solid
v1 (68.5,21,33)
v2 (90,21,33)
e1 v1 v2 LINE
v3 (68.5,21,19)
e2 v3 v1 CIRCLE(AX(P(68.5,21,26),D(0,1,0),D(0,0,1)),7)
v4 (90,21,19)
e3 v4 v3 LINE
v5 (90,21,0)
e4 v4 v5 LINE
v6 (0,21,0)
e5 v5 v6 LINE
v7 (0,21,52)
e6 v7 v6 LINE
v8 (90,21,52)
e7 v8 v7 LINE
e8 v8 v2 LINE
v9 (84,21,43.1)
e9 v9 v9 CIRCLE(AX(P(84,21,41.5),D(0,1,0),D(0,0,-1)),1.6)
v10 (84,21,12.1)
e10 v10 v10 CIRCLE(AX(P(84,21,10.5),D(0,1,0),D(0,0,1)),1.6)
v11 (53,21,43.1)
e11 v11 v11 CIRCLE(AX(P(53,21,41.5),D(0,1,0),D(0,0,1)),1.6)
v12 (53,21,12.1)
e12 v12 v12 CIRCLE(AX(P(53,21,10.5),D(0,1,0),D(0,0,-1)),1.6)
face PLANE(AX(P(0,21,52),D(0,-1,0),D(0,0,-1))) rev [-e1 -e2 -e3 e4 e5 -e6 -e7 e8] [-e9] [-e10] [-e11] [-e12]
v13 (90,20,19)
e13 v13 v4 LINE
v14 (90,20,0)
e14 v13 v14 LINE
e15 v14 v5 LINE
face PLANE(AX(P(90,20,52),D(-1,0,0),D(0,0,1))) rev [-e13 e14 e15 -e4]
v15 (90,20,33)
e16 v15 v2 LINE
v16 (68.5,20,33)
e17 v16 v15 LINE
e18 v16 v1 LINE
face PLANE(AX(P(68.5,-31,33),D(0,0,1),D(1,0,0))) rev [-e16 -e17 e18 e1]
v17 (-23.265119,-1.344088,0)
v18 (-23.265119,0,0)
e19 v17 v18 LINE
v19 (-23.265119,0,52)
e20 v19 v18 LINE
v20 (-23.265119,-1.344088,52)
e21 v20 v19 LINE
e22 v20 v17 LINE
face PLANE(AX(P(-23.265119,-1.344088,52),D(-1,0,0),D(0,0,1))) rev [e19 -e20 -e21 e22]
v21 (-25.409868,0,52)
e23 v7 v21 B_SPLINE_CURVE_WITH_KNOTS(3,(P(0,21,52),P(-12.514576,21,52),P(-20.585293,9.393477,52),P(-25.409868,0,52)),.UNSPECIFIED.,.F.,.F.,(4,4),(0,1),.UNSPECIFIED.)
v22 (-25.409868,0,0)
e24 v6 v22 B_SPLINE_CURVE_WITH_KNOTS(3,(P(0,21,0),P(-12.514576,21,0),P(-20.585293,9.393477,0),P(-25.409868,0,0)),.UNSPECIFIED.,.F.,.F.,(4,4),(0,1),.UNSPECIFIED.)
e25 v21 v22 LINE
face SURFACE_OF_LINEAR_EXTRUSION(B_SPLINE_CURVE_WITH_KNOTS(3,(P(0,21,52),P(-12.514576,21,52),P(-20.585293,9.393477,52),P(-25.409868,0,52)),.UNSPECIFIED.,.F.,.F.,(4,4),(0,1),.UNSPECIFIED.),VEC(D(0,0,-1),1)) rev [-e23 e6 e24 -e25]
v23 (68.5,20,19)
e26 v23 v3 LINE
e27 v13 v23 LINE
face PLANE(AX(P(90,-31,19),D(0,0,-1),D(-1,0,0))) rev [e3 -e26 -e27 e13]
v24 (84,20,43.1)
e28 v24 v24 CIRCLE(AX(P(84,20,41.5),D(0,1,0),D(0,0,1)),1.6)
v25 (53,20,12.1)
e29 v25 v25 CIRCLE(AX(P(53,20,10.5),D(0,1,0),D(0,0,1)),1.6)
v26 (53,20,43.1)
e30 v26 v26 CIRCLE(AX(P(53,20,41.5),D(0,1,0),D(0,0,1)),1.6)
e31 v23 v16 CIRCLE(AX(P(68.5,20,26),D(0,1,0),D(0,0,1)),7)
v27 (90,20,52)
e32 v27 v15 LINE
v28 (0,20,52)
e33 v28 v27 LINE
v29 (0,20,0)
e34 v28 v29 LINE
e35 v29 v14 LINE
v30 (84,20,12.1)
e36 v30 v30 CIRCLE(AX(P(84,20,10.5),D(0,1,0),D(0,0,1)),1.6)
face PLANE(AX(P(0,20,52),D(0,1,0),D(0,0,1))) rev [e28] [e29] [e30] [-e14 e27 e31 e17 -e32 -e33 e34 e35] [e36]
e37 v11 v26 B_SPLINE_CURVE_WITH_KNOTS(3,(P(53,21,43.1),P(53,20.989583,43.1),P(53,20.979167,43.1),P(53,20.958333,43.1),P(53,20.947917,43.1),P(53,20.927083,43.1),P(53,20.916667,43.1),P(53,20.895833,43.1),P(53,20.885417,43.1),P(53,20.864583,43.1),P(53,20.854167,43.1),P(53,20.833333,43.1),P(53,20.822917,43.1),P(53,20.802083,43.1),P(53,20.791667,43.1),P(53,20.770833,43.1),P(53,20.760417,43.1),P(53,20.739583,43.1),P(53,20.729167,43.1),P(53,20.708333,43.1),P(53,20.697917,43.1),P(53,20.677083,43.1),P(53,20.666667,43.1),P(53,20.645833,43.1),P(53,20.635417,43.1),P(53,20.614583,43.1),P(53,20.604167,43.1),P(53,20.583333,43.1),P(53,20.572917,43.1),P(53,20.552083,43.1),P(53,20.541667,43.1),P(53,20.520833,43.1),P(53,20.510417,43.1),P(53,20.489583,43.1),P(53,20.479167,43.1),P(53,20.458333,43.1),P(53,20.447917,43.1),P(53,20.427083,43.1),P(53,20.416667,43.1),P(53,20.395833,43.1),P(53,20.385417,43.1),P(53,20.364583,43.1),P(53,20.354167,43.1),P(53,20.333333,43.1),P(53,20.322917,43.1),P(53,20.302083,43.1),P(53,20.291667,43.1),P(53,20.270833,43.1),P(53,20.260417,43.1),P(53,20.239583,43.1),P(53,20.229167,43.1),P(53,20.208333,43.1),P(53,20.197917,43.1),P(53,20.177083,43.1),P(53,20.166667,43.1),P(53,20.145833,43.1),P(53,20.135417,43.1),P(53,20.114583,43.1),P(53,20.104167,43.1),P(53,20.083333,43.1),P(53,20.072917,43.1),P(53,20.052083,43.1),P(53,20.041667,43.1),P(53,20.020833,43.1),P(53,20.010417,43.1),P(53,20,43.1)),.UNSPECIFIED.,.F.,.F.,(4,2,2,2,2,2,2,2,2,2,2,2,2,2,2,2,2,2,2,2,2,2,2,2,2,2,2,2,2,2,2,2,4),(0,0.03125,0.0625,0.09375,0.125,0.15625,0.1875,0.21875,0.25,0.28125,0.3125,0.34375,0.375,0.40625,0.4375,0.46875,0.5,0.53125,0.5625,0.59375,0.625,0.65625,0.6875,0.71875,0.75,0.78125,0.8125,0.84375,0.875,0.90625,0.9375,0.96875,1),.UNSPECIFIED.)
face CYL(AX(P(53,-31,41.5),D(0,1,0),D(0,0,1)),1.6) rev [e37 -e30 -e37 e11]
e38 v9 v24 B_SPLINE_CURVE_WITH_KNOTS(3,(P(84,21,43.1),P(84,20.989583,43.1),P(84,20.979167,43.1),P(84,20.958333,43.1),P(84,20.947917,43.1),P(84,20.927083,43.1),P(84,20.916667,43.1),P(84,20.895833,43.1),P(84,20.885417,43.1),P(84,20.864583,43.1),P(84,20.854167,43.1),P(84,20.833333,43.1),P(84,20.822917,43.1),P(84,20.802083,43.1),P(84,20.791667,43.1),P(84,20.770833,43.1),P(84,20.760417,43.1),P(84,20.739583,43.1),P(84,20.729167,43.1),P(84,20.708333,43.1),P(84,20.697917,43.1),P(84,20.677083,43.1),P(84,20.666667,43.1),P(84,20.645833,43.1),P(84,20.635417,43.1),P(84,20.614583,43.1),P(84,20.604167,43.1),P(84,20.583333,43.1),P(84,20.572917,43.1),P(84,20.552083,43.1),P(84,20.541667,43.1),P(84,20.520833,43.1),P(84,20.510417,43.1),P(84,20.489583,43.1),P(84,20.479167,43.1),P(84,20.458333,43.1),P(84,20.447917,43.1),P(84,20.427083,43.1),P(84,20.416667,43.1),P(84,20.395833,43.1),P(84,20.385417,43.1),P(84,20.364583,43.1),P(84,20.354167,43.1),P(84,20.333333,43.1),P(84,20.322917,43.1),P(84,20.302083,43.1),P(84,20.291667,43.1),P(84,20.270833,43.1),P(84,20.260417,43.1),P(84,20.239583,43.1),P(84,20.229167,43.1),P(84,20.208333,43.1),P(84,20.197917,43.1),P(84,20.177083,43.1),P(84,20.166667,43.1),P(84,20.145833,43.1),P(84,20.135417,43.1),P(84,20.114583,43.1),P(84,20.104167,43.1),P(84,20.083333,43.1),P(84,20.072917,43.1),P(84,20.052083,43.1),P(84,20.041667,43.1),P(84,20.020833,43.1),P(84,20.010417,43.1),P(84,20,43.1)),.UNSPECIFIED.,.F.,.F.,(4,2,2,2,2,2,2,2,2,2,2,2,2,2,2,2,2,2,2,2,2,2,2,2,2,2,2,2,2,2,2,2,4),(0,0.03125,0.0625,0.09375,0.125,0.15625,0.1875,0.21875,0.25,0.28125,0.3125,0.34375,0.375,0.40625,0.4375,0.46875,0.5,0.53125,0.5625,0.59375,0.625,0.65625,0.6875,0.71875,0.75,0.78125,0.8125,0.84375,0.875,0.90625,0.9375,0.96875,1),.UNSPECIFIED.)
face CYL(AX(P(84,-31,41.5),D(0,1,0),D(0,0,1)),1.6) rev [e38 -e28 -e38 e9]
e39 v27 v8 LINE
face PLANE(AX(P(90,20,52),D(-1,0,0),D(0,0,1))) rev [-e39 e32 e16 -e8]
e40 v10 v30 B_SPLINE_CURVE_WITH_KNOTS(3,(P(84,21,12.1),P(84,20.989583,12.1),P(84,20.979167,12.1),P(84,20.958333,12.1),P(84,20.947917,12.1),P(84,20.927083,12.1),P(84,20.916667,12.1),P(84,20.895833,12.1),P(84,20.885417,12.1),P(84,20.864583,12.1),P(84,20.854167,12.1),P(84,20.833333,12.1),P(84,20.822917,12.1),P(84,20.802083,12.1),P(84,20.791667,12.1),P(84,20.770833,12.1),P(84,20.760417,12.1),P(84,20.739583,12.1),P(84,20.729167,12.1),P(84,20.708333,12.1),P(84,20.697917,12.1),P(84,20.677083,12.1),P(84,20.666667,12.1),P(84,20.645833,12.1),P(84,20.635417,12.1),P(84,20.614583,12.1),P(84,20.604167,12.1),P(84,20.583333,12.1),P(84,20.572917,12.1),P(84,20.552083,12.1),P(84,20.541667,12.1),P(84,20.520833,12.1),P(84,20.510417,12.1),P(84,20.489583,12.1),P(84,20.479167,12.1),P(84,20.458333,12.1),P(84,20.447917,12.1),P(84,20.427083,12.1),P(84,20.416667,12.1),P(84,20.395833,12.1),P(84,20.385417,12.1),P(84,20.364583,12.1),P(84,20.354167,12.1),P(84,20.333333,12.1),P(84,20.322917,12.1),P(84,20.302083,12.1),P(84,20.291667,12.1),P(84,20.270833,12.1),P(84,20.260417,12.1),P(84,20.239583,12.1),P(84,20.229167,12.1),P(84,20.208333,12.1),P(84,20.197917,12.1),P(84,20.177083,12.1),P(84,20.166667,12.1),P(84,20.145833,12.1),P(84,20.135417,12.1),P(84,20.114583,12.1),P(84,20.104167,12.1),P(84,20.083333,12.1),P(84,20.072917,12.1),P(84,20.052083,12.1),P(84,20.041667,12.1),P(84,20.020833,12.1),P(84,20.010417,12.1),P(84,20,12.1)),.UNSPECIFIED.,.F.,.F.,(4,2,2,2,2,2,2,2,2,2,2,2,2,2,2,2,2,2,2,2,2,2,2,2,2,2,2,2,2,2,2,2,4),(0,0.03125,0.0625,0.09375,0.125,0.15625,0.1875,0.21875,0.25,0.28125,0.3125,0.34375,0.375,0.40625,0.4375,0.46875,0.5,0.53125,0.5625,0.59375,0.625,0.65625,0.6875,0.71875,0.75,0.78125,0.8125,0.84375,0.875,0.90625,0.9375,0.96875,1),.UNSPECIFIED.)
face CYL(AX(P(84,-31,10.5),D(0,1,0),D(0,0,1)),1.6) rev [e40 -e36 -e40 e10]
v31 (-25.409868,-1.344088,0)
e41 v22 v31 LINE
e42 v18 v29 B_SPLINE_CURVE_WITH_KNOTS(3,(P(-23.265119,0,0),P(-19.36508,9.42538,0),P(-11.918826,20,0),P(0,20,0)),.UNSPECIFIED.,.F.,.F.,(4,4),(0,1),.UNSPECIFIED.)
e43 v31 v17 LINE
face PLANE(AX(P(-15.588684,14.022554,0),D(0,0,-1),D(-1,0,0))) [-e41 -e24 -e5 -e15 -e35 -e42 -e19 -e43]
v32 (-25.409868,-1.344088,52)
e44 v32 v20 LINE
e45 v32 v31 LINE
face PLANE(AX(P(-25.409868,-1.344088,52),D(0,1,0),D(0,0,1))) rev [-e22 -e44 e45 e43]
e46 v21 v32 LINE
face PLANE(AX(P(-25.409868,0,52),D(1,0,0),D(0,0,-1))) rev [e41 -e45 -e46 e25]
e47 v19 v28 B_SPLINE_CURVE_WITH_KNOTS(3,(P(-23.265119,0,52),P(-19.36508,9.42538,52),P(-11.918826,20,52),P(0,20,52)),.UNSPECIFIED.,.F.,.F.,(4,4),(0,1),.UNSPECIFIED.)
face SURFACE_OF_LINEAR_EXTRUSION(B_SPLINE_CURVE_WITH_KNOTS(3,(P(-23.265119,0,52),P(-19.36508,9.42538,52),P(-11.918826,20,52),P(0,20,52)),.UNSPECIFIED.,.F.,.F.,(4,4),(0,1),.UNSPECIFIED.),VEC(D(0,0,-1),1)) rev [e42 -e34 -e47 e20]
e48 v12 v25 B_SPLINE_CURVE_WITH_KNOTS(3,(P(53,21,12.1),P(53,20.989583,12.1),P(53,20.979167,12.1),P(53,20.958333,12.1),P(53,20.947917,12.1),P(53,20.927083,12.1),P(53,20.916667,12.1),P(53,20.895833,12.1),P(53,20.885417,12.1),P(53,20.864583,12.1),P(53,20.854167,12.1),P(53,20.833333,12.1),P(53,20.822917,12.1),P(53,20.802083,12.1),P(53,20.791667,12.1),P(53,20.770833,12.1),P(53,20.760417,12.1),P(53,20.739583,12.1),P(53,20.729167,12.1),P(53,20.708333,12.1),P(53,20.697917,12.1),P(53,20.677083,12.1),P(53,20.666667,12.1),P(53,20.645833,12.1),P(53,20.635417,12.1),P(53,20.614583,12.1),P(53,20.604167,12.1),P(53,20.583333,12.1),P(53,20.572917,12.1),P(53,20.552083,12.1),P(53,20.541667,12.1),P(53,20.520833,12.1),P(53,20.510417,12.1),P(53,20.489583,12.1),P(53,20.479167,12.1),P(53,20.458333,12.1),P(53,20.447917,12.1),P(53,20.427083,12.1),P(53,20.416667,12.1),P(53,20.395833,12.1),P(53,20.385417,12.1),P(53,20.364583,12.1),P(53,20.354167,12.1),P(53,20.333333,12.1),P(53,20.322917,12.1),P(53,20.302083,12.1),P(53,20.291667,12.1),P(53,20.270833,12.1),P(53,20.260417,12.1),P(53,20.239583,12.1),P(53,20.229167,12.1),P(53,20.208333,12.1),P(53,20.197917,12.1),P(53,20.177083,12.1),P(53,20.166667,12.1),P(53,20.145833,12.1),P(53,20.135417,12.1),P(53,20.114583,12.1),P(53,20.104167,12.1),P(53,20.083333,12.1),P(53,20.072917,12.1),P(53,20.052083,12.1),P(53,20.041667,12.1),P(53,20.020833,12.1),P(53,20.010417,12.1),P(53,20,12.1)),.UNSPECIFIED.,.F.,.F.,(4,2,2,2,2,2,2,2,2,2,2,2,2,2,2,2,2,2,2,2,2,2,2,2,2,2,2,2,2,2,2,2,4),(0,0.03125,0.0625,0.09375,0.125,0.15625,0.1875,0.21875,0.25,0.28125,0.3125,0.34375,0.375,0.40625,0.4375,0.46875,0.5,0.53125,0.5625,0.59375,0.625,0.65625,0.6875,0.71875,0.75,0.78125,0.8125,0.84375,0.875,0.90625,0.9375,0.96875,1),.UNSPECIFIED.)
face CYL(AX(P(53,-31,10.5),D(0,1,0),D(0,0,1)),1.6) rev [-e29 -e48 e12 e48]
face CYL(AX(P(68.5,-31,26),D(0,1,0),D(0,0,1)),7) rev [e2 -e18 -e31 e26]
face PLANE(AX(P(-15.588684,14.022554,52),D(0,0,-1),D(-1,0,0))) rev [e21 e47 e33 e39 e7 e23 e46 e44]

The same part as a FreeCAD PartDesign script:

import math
import FreeCAD as App
import Part
import Sketcher
from FreeCAD import Vector

doc = App.newDocument("Part")
body = doc.addObject("PartDesign::Body", "Body")

sketch1 = doc.addObject("Sketcher::SketchObject", "Sketch")
body.addObject(sketch1)
sketch1.AttachmentSupport = (doc.XY_Plane, [""])
sketch1.MapMode = "FlatFace"
sketch1.addGeometry([
    Part.LineSegment(Vector(90, 21, 0), Vector(0, 21, 0)),
    Part.BSplineCurve([Vector(0, 21, 0), Vector(-12.514576, 21, 0), Vector(-20.585293, 9.393477, 0), Vector(-25.409868, 0, 0)], [4, 4], [0, 1], False, 3, [1, 1, 1, 1], False),
    Part.LineSegment(Vector(-25.409868, 0, 0), Vector(-25.409868, -1.344088, 0)),
    Part.LineSegment(Vector(-25.409868, -1.344088, 0), Vector(-23.265119, -1.344088, 0)),
    Part.LineSegment(Vector(-23.265119, -1.344088, 0), Vector(-23.265119, 0, 0)),
    Part.BSplineCurve([Vector(0, 20, 0), Vector(-11.918826, 20, 0), Vector(-19.36508, 9.42538, 0), Vector(-23.265119, 0, 0)], [4, 4], [0, 1], False, 3, [1, 1, 1, 1], False),
    Part.LineSegment(Vector(0, 20, 0), Vector(90, 20, 0)),
    Part.LineSegment(Vector(90, 20, 0), Vector(90, 21, 0)),
], False)
sketch1.addConstraint([
    Sketcher.Constraint("Block", 1),
    Sketcher.Constraint("Block", 5),
    Sketcher.Constraint("Coincident", 0, 2, 1, 1),
    Sketcher.Constraint("Coincident", 1, 2, 2, 1),
    Sketcher.Constraint("Coincident", 2, 2, 3, 1),
    Sketcher.Constraint("Coincident", 3, 2, 4, 1),
    Sketcher.Constraint("Coincident", 4, 2, 5, 2),
    Sketcher.Constraint("Coincident", 5, 1, 6, 1),
    Sketcher.Constraint("Coincident", 6, 2, 7, 1),
    Sketcher.Constraint("Coincident", 7, 2, 0, 1),
    Sketcher.Constraint("Horizontal", 0),
    Sketcher.Constraint("Vertical", 2),
    Sketcher.Constraint("Horizontal", 3),
    Sketcher.Constraint("Vertical", 4),
    Sketcher.Constraint("Horizontal", 6),
    Sketcher.Constraint("Vertical", 7),
    Sketcher.Constraint("DistanceX", 0, 2, 0, 1, 90.0),
    Sketcher.Constraint("DistanceY", 2, 2, 2, 1, 1.344088),
])
pad1 = doc.addObject("PartDesign::Pad", "Pad")
body.addObject(pad1)
pad1.Profile = sketch1
pad1.Length = 52

sketch2 = doc.addObject("Sketcher::SketchObject", "Sketch001")
body.addObject(sketch2)
sketch2.AttachmentSupport = (doc.XZ_Plane, [""])
sketch2.MapMode = "FlatFace"
sketch2.AttachmentOffset = App.Placement(Vector(0, 0, -21), App.Rotation())
sketch2.addGeometry([
    Part.Circle(Vector(84, 10.5, 0), Vector(0, 0, 1), 1.6),
    Part.Circle(Vector(84, 41.5, 0), Vector(0, 0, 1), 1.6),
    Part.Circle(Vector(53, 41.5, 0), Vector(0, 0, 1), 1.6),
    Part.Circle(Vector(53, 10.5, 0), Vector(0, 0, 1), 1.6),
    Part.LineSegment(Vector(90, 19, 0), Vector(68.5, 19, 0)),
    Part.ArcOfCircle(Part.Circle(Vector(68.5, 26, 0), Vector(0, 0, 1), 7), math.radians(90), math.radians(270)),
    Part.LineSegment(Vector(68.5, 33, 0), Vector(90, 33, 0)),
    Part.LineSegment(Vector(90, 33, 0), Vector(90, 19, 0)),
], False)
sketch2.addConstraint([
    Sketcher.Constraint("Tangent", 4, 2, 5, 2),
    Sketcher.Constraint("Tangent", 5, 1, 6, 1),
    Sketcher.Constraint("Coincident", 6, 2, 7, 1),
    Sketcher.Constraint("Coincident", 7, 2, 4, 1),
    Sketcher.Constraint("Horizontal", 4),
    Sketcher.Constraint("Horizontal", 6),
    Sketcher.Constraint("Vertical", 7),
    Sketcher.Constraint("Equal", 0, 1),
    Sketcher.Constraint("Equal", 1, 2),
    Sketcher.Constraint("Equal", 2, 3),
    Sketcher.Constraint("Horizontal", 1, 3, 2, 3),
    Sketcher.Constraint("Horizontal", 0, 3, 3, 3),
    Sketcher.Constraint("Vertical", 0, 3, 1, 3),
    Sketcher.Constraint("Vertical", 2, 3, 3, 3),
    Sketcher.Constraint("Radius", 5, 7.0),
    Sketcher.Constraint("Diameter", 0, 3.2),
    Sketcher.Constraint("DistanceX", 4, 2, 4, 1, 21.5),
    Sketcher.Constraint("DistanceX", -1, 1, 0, 3, 84.0),
    Sketcher.Constraint("DistanceX", -1, 1, 2, 3, 53.0),
    Sketcher.Constraint("DistanceY", -1, 1, 5, 3, 26.0),
    Sketcher.Constraint("DistanceX", -1, 1, 6, 2, 90.0),
    Sketcher.Constraint("DistanceY", 0, 3, 1, 3, 31.0),
    Sketcher.Constraint("DistanceY", -1, 1, 0, 3, 10.5),
])
pocket1 = doc.addObject("PartDesign::Pocket", "Pocket")
body.addObject(pocket1)
pocket1.Profile = sketch2
pocket1.Length = 52
pocket1.Reversed = True

doc.recompute()
